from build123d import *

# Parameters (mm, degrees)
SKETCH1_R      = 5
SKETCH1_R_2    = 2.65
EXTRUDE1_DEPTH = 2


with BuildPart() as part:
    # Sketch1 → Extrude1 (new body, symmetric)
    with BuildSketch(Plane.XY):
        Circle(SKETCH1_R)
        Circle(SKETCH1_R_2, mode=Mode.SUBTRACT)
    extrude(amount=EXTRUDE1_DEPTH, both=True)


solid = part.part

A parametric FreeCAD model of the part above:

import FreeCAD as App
import Part
import Sketcher

doc = App.newDocument("Part")
body = doc.addObject("PartDesign::Body", "Body")

sketch1 = body.newObject("Sketcher::SketchObject", "Sketch")
sketch1.AttachmentSupport = (doc.getObject("XY_Plane"), [""])
sketch1.MapMode = "FlatFace"
sketch1.addGeometry(Part.Circle(App.Vector(0, 0, 0), App.Vector(0, 0, 1), 5), False)
sketch1.addGeometry(Part.Circle(App.Vector(0, 0, 0), App.Vector(0, 0, 1), 2.65), False)
sketch1.addConstraint(Sketcher.Constraint("Coincident", 0, 3, -1, 1))
sketch1.addConstraint(Sketcher.Constraint("Coincident", 1, 3, -1, 1))
sketch1.addConstraint(Sketcher.Constraint("Diameter", 0, 10.0))
sketch1.addConstraint(Sketcher.Constraint("Diameter", 1, 5.3))
pad1 = body.newObject("PartDesign::Pad", "Pad")
pad1.Profile = sketch1
pad1.Length = 4
pad1.Midplane = True

doc.recompute()
